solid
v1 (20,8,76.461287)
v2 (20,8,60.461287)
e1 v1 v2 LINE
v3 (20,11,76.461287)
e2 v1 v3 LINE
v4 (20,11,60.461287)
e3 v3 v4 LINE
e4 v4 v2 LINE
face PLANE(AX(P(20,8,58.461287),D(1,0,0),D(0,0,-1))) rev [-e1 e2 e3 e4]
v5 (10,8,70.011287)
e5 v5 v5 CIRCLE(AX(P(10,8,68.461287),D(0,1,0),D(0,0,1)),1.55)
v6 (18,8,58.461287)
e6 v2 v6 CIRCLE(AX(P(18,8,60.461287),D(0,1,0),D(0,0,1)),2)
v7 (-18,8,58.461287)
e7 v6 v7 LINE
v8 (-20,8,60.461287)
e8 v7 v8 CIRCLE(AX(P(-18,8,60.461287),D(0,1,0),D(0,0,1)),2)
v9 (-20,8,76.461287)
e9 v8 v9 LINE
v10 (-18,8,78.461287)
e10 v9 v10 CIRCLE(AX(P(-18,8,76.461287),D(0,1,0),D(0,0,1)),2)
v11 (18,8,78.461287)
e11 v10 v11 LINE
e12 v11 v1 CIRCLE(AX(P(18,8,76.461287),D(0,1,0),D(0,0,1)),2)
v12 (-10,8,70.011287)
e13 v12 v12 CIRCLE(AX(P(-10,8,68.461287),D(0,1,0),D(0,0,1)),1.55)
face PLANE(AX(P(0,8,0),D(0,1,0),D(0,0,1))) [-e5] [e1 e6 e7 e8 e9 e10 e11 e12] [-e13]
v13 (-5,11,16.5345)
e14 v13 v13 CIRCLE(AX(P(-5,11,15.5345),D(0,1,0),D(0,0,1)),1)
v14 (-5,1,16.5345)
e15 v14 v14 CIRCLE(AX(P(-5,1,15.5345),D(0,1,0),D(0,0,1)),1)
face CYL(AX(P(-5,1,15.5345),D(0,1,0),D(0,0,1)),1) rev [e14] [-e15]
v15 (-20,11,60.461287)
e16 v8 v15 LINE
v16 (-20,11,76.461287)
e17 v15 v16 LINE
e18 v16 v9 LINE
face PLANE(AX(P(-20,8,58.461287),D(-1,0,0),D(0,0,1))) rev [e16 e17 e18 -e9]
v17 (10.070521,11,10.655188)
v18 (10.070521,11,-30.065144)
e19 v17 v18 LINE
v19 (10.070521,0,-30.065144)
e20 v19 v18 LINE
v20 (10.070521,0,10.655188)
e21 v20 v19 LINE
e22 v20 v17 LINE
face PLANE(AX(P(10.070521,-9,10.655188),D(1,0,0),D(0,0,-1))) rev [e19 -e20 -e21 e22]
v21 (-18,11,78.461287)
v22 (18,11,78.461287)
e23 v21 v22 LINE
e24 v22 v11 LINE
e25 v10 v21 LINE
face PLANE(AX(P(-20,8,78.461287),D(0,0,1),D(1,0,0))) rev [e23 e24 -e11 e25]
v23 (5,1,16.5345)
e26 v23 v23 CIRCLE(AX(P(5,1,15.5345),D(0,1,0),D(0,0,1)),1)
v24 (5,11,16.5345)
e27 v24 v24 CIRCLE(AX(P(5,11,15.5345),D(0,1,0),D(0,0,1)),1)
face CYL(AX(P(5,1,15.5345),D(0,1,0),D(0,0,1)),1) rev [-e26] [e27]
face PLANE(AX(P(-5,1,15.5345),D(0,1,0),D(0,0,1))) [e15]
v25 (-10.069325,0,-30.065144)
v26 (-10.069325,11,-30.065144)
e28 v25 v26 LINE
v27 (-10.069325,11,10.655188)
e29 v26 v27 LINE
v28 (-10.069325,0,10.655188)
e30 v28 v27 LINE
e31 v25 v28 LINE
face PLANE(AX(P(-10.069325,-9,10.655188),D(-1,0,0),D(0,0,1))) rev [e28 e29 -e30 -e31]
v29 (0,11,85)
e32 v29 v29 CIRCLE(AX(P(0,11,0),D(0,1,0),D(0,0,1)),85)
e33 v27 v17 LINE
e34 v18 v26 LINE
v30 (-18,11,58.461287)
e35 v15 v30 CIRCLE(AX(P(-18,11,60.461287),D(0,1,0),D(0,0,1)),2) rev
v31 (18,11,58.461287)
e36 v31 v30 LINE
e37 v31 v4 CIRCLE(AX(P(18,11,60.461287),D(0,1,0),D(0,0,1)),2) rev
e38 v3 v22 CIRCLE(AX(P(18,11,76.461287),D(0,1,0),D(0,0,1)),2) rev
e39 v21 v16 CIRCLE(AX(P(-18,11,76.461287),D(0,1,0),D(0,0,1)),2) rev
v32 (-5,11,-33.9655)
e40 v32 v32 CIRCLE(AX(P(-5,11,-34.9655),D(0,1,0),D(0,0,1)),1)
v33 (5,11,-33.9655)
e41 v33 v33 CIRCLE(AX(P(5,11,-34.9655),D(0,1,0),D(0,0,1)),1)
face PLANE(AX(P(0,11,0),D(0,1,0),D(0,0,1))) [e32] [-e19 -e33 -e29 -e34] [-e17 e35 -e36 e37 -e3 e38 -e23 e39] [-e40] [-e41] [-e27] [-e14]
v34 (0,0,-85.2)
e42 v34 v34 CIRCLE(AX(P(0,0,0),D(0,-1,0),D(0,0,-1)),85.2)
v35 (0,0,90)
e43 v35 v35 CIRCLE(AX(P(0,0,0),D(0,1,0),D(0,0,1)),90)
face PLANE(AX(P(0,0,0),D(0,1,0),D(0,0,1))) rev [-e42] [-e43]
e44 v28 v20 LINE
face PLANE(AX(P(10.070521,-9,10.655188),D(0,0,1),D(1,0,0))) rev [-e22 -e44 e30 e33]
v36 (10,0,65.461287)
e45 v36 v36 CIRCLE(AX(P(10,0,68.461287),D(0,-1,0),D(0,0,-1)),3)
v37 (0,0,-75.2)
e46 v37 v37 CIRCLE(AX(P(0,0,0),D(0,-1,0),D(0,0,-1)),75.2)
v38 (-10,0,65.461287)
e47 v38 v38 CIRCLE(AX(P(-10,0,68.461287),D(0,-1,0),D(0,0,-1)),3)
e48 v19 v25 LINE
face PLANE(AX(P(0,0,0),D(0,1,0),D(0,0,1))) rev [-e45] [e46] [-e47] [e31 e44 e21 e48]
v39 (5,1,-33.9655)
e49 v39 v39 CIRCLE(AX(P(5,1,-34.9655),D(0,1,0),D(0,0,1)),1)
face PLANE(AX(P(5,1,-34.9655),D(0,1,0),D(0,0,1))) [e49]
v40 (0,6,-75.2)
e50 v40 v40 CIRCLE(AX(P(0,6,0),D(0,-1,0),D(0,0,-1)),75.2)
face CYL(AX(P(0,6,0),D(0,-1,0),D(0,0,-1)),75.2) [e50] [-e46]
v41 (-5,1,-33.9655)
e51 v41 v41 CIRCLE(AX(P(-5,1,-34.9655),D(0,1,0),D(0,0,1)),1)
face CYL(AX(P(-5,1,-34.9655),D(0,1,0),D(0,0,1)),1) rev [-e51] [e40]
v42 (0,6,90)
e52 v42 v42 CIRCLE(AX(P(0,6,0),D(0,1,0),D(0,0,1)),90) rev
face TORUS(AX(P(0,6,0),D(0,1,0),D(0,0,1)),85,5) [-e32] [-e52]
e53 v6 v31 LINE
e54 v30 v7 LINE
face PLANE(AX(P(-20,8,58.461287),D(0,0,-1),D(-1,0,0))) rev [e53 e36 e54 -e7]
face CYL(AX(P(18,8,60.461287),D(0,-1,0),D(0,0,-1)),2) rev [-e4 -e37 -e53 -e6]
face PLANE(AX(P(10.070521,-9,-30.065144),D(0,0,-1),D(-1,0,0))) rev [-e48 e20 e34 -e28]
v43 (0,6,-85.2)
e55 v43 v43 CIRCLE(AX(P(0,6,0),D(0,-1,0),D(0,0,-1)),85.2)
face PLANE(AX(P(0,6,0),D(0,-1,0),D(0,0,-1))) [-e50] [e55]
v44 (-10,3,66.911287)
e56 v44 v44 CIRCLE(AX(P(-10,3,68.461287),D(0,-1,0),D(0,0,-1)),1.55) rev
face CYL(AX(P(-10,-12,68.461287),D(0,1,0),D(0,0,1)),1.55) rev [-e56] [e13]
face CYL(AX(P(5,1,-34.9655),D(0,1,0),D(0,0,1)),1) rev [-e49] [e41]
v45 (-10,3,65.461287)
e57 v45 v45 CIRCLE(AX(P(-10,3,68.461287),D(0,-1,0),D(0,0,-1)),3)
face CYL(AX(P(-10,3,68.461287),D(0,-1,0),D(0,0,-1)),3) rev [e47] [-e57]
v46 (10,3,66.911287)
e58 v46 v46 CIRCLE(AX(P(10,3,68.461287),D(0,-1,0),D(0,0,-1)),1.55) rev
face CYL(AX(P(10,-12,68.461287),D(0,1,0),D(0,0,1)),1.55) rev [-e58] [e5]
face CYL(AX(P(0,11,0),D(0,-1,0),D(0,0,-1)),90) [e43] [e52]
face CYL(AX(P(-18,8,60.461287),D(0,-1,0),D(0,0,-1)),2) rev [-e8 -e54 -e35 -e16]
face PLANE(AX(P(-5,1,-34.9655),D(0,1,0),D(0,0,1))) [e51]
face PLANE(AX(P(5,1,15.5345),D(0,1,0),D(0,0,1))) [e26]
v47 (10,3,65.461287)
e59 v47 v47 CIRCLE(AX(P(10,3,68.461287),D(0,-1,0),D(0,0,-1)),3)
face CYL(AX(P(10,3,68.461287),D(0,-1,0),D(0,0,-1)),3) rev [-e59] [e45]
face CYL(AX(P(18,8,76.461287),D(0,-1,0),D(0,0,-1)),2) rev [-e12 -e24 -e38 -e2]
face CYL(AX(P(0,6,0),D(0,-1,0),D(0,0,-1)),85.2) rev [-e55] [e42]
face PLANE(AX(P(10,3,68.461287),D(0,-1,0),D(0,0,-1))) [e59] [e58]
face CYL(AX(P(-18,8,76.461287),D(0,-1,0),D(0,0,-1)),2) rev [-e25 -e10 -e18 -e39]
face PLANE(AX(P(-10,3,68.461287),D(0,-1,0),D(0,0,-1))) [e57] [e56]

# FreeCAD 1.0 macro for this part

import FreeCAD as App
import Part
import Sketcher
Q = App.Units.Quantity


def edges_at(feature, points):
    """Names of the edges that pass closest to the given points."""
    edges = feature.Shape.Edges
    near = lambda p: min(range(len(edges)), key=lambda i: edges[i].distToShape(Part.Vertex(*p))[0])
    return sorted({f"Edge{near(p) + 1}" for p in points})

doc = App.newDocument("Part")
body = doc.addObject("PartDesign::Body", "Body")

# Sketch on XZ plane
sketch1 = doc.addObject("Sketcher::SketchObject", "Sketch")
body.addObject(sketch1)
sketch1.AttachmentSupport = (doc.XZ_Plane, [""])
sketch1.MapMode = "FlatFace"
sketch1.addGeometry(Part.Circle(App.Vector(0, 0, 0), App.Vector(0, 0, 1), 90), False)
sketch1.addConstraint([
    Sketcher.Constraint("Coincident", 0, 3, -1, 1),
    Sketcher.Constraint("Diameter", 0, Q("180 mm")),
])
pad1 = doc.addObject("PartDesign::Pad", "Pad")
body.addObject(pad1)
pad1.Profile = sketch1
pad1.Length = 11
pad1.Reversed = True

# Sketch on XZ plane
sketch2 = doc.addObject("Sketcher::SketchObject", "Sketch001")
body.addObject(sketch2)
sketch2.AttachmentSupport = (doc.XZ_Plane, [""])
sketch2.MapMode = "FlatFace"
sketch2.AttachmentOffset = App.Placement(App.Vector(0, 0, -11), App.Rotation())
sketch2.addGeometry([
    Part.LineSegment(App.Vector(-20, 58, 0), App.Vector(-20, 78, 0)),
    Part.LineSegment(App.Vector(-20, 78, 0), App.Vector(20, 78, 0)),
    Part.LineSegment(App.Vector(20, 78, 0), App.Vector(20, 58, 0)),
    Part.LineSegment(App.Vector(20, 58, 0), App.Vector(-20, 58, 0)),
], False)
sketch2.addConstraint([
    Sketcher.Constraint("Coincident", 0, 2, 1, 1),
    Sketcher.Constraint("Coincident", 1, 2, 2, 1),
    Sketcher.Constraint("Coincident", 2, 2, 3, 1),
    Sketcher.Constraint("Coincident", 3, 2, 0, 1),
    Sketcher.Constraint("Vertical", 0),
    Sketcher.Constraint("Horizontal", 1),
    Sketcher.Constraint("Vertical", 2),
    Sketcher.Constraint("Horizontal", 3),
    Sketcher.Constraint("DistanceX", 1, 1, 1, 2, Q("40 mm")),
    Sketcher.Constraint("DistanceY", 0, 1, 0, 2, Q("20 mm")),
    Sketcher.Constraint("DistanceX", 0, 2, -1, 1, Q("20 mm")),
    Sketcher.Constraint("DistanceY", -1, 1, 0, 2, Q("78.461287 mm")),
])
pocket1 = doc.addObject("PartDesign::Pocket", "Pocket")
body.addObject(pocket1)
pocket1.Profile = sketch2
pocket1.Length = 3
pocket1.Reversed = True

# Sketch on XZ plane
sketch3 = doc.addObject("Sketcher::SketchObject", "Sketch002")
body.addObject(sketch3)
sketch3.AttachmentSupport = (doc.XZ_Plane, [""])
sketch3.MapMode = "FlatFace"
sketch3.AttachmentOffset = App.Placement(App.Vector(0, 0, -8), App.Rotation())
sketch3.addGeometry([
    Part.Circle(App.Vector(10, 68.5, 0), App.Vector(0, 0, 1), 1.6),
    Part.Circle(App.Vector(-10, 68.5, 0), App.Vector(0, 0, 1), 1.6),
], False)
sketch3.addConstraint([
    Sketcher.Constraint("Equal", 0, 1),
    Sketcher.Constraint("Symmetric", 0, 3, 1, 3, -2),
    Sketcher.Constraint("Diameter", 0, Q("3.1 mm")),
    Sketcher.Constraint("DistanceX", -1, 1, 0, 3, Q("10 mm")),
    Sketcher.Constraint("DistanceY", -1, 1, 0, 3, Q("68.461287 mm")),
])
pocket2 = doc.addObject("PartDesign::Pocket", "Pocket001")
body.addObject(pocket2)
pocket2.Profile = sketch3
pocket2.Length = 20
pocket2.Reversed = True

# Sketch on XZ plane
sketch4 = doc.addObject("Sketcher::SketchObject", "Sketch003")
body.addObject(sketch4)
sketch4.AttachmentSupport = (doc.XZ_Plane, [""])
sketch4.MapMode = "FlatFace"
sketch4.addGeometry([
    Part.Circle(App.Vector(10, 68.5, 0), App.Vector(0, 0, 1), 3),
    Part.Circle(App.Vector(-10, 68.5, 0), App.Vector(0, 0, 1), 3),
], False)
sketch4.addConstraint([
    Sketcher.Constraint("Equal", 0, 1),
    Sketcher.Constraint("Symmetric", 0, 3, 1, 3, -2),
    Sketcher.Constraint("Diameter", 0, Q("6 mm")),
    Sketcher.Constraint("DistanceX", -1, 1, 0, 3, Q("10 mm")),
    Sketcher.Constraint("DistanceY", -1, 1, 0, 3, Q("68.461287 mm")),
])
pocket3 = doc.addObject("PartDesign::Pocket", "Pocket002")
body.addObject(pocket3)
pocket3.Profile = sketch4
pocket3.Length = 3
doc.recompute()

fillet = doc.addObject("PartDesign::Fillet", "Fillet")
body.addObject(fillet)
fillet.Base = (pocket3, edges_at(pocket3, [(-20, 9.5, 58.461)]))
fillet.Radius = 2
doc.recompute()

fillet2 = doc.addObject("PartDesign::Fillet", "Fillet001")
body.addObject(fillet2)
fillet2.Base = (fillet, edges_at(fillet, [(20, 9.5, 58.461)]))
fillet2.Radius = 2
doc.recompute()

fillet3 = doc.addObject("PartDesign::Fillet", "Fillet002")
body.addObject(fillet3)
fillet3.Base = (fillet2, edges_at(fillet2, [(-20, 9.5, 78.461)]))
fillet3.Radius = 2
doc.recompute()

fillet4 = doc.addObject("PartDesign::Fillet", "Fillet003")
body.addObject(fillet4)
fillet4.Base = (fillet3, edges_at(fillet3, [(20, 9.5, 78.461)]))
fillet4.Radius = 2

# Sketch on XZ plane
sketch5 = doc.addObject("Sketcher::SketchObject", "Sketch004")
body.addObject(sketch5)
sketch5.AttachmentSupport = (doc.XZ_Plane, [""])
sketch5.MapMode = "FlatFace"
sketch5.addGeometry([
    Part.Circle(App.Vector(0, 0, 0), App.Vector(0, 0, 1), 85),
    Part.Circle(App.Vector(0, 0, 0), App.Vector(0, 0, 1), 75),
], False)
sketch5.addConstraint([
    Sketcher.Constraint("Coincident", 0, 3, -1, 1),
    Sketcher.Constraint("Coincident", 1, 3, -1, 1),
    Sketcher.Constraint("Diameter", 0, Q("170.4 mm")),
    Sketcher.Constraint("Diameter", 1, Q("150.4 mm")),
])
pocket4 = doc.addObject("PartDesign::Pocket", "Pocket003")
body.addObject(pocket4)
pocket4.Profile = sketch5
pocket4.Length = 6
doc.recompute()

fillet5 = doc.addObject("PartDesign::Fillet", "Fillet004")
body.addObject(fillet5)
fillet5.Base = (pocket4, edges_at(pocket4, [(0, 11, -90)]))
fillet5.Radius = 5

# Sketch on XZ plane
sketch6 = doc.addObject("Sketcher::SketchObject", "Sketch005")
body.addObject(sketch6)
sketch6.AttachmentSupport = (doc.XZ_Plane, [""])
sketch6.MapMode = "FlatFace"
sketch6.AttachmentOffset = App.Placement(App.Vector(0, 0, -11), App.Rotation())
sketch6.addGeometry([
    Part.LineSegment(App.Vector(-10, -30, 0), App.Vector(-10, 11, 0)),
    Part.LineSegment(App.Vector(-10, 11, 0), App.Vector(10, 11, 0)),
    Part.LineSegment(App.Vector(10, 11, 0), App.Vector(10, -30, 0)),
    Part.LineSegment(App.Vector(10, -30, 0), App.Vector(-10, -30, 0)),
], False)
sketch6.addConstraint([
    Sketcher.Constraint("Coincident", 0, 2, 1, 1),
    Sketcher.Constraint("Coincident", 1, 2, 2, 1),
    Sketcher.Constraint("Coincident", 2, 2, 3, 1),
    Sketcher.Constraint("Coincident", 3, 2, 0, 1),
    Sketcher.Constraint("Vertical", 0),
    Sketcher.Constraint("Horizontal", 1),
    Sketcher.Constraint("Vertical", 2),
    Sketcher.Constraint("Horizontal", 3),
    Sketcher.Constraint("DistanceX", 1, 1, 1, 2, Q("20.139846 mm")),
    Sketcher.Constraint("DistanceY", 0, 1, 0, 2, Q("40.720332 mm")),
    Sketcher.Constraint("DistanceY", -1, 1, 0, 2, Q("10.655188 mm")),
    Sketcher.Constraint("DistanceX", -1, 1, 1, 2, Q("10.070521 mm")),
])
pocket5 = doc.addObject("PartDesign::Pocket", "Pocket004")
body.addObject(pocket5)
pocket5.Profile = sketch6
pocket5.Length = 20
pocket5.Reversed = True

# Sketch on XZ plane
sketch7 = doc.addObject("Sketcher::SketchObject", "Sketch006")
body.addObject(sketch7)
sketch7.AttachmentSupport = (doc.XZ_Plane, [""])
sketch7.MapMode = "FlatFace"
sketch7.AttachmentOffset = App.Placement(App.Vector(0, 0, -11), App.Rotation())
sketch7.addGeometry([
    Part.Circle(App.Vector(-5, -35, 0), App.Vector(0, 0, 1), 1),
    Part.Circle(App.Vector(5, -35, 0), App.Vector(0, 0, 1), 1),
    Part.Circle(App.Vector(-5, 15.5, 0), App.Vector(0, 0, 1), 1),
    Part.Circle(App.Vector(5, 15.5, 0), App.Vector(0, 0, 1), 1),
], False)
sketch7.addConstraint([
    Sketcher.Constraint("Equal", 0, 1),
    Sketcher.Constraint("Equal", 1, 2),
    Sketcher.Constraint("Equal", 2, 3),
    Sketcher.Constraint("Symmetric", 0, 3, 1, 3, -2),
    Sketcher.Constraint("Symmetric", 2, 3, 3, 3, -2),
    Sketcher.Constraint("Vertical", 0, 3, 2, 3),
    Sketcher.Constraint("Diameter", 0, Q("2 mm")),
    Sketcher.Constraint("DistanceX", 0, 3, -1, 1, Q("5 mm")),
    Sketcher.Constraint("DistanceY", 0, 3, 2, 3, Q("50.500001 mm")),
    Sketcher.Constraint("DistanceY", 0, 3, -1, 1, Q("34.9655 mm")),
])
pocket6 = doc.addObject("PartDesign::Pocket", "Pocket005")
body.addObject(pocket6)
pocket6.Profile = sketch7
pocket6.Length = 10
pocket6.Reversed = True

doc.recompute()
